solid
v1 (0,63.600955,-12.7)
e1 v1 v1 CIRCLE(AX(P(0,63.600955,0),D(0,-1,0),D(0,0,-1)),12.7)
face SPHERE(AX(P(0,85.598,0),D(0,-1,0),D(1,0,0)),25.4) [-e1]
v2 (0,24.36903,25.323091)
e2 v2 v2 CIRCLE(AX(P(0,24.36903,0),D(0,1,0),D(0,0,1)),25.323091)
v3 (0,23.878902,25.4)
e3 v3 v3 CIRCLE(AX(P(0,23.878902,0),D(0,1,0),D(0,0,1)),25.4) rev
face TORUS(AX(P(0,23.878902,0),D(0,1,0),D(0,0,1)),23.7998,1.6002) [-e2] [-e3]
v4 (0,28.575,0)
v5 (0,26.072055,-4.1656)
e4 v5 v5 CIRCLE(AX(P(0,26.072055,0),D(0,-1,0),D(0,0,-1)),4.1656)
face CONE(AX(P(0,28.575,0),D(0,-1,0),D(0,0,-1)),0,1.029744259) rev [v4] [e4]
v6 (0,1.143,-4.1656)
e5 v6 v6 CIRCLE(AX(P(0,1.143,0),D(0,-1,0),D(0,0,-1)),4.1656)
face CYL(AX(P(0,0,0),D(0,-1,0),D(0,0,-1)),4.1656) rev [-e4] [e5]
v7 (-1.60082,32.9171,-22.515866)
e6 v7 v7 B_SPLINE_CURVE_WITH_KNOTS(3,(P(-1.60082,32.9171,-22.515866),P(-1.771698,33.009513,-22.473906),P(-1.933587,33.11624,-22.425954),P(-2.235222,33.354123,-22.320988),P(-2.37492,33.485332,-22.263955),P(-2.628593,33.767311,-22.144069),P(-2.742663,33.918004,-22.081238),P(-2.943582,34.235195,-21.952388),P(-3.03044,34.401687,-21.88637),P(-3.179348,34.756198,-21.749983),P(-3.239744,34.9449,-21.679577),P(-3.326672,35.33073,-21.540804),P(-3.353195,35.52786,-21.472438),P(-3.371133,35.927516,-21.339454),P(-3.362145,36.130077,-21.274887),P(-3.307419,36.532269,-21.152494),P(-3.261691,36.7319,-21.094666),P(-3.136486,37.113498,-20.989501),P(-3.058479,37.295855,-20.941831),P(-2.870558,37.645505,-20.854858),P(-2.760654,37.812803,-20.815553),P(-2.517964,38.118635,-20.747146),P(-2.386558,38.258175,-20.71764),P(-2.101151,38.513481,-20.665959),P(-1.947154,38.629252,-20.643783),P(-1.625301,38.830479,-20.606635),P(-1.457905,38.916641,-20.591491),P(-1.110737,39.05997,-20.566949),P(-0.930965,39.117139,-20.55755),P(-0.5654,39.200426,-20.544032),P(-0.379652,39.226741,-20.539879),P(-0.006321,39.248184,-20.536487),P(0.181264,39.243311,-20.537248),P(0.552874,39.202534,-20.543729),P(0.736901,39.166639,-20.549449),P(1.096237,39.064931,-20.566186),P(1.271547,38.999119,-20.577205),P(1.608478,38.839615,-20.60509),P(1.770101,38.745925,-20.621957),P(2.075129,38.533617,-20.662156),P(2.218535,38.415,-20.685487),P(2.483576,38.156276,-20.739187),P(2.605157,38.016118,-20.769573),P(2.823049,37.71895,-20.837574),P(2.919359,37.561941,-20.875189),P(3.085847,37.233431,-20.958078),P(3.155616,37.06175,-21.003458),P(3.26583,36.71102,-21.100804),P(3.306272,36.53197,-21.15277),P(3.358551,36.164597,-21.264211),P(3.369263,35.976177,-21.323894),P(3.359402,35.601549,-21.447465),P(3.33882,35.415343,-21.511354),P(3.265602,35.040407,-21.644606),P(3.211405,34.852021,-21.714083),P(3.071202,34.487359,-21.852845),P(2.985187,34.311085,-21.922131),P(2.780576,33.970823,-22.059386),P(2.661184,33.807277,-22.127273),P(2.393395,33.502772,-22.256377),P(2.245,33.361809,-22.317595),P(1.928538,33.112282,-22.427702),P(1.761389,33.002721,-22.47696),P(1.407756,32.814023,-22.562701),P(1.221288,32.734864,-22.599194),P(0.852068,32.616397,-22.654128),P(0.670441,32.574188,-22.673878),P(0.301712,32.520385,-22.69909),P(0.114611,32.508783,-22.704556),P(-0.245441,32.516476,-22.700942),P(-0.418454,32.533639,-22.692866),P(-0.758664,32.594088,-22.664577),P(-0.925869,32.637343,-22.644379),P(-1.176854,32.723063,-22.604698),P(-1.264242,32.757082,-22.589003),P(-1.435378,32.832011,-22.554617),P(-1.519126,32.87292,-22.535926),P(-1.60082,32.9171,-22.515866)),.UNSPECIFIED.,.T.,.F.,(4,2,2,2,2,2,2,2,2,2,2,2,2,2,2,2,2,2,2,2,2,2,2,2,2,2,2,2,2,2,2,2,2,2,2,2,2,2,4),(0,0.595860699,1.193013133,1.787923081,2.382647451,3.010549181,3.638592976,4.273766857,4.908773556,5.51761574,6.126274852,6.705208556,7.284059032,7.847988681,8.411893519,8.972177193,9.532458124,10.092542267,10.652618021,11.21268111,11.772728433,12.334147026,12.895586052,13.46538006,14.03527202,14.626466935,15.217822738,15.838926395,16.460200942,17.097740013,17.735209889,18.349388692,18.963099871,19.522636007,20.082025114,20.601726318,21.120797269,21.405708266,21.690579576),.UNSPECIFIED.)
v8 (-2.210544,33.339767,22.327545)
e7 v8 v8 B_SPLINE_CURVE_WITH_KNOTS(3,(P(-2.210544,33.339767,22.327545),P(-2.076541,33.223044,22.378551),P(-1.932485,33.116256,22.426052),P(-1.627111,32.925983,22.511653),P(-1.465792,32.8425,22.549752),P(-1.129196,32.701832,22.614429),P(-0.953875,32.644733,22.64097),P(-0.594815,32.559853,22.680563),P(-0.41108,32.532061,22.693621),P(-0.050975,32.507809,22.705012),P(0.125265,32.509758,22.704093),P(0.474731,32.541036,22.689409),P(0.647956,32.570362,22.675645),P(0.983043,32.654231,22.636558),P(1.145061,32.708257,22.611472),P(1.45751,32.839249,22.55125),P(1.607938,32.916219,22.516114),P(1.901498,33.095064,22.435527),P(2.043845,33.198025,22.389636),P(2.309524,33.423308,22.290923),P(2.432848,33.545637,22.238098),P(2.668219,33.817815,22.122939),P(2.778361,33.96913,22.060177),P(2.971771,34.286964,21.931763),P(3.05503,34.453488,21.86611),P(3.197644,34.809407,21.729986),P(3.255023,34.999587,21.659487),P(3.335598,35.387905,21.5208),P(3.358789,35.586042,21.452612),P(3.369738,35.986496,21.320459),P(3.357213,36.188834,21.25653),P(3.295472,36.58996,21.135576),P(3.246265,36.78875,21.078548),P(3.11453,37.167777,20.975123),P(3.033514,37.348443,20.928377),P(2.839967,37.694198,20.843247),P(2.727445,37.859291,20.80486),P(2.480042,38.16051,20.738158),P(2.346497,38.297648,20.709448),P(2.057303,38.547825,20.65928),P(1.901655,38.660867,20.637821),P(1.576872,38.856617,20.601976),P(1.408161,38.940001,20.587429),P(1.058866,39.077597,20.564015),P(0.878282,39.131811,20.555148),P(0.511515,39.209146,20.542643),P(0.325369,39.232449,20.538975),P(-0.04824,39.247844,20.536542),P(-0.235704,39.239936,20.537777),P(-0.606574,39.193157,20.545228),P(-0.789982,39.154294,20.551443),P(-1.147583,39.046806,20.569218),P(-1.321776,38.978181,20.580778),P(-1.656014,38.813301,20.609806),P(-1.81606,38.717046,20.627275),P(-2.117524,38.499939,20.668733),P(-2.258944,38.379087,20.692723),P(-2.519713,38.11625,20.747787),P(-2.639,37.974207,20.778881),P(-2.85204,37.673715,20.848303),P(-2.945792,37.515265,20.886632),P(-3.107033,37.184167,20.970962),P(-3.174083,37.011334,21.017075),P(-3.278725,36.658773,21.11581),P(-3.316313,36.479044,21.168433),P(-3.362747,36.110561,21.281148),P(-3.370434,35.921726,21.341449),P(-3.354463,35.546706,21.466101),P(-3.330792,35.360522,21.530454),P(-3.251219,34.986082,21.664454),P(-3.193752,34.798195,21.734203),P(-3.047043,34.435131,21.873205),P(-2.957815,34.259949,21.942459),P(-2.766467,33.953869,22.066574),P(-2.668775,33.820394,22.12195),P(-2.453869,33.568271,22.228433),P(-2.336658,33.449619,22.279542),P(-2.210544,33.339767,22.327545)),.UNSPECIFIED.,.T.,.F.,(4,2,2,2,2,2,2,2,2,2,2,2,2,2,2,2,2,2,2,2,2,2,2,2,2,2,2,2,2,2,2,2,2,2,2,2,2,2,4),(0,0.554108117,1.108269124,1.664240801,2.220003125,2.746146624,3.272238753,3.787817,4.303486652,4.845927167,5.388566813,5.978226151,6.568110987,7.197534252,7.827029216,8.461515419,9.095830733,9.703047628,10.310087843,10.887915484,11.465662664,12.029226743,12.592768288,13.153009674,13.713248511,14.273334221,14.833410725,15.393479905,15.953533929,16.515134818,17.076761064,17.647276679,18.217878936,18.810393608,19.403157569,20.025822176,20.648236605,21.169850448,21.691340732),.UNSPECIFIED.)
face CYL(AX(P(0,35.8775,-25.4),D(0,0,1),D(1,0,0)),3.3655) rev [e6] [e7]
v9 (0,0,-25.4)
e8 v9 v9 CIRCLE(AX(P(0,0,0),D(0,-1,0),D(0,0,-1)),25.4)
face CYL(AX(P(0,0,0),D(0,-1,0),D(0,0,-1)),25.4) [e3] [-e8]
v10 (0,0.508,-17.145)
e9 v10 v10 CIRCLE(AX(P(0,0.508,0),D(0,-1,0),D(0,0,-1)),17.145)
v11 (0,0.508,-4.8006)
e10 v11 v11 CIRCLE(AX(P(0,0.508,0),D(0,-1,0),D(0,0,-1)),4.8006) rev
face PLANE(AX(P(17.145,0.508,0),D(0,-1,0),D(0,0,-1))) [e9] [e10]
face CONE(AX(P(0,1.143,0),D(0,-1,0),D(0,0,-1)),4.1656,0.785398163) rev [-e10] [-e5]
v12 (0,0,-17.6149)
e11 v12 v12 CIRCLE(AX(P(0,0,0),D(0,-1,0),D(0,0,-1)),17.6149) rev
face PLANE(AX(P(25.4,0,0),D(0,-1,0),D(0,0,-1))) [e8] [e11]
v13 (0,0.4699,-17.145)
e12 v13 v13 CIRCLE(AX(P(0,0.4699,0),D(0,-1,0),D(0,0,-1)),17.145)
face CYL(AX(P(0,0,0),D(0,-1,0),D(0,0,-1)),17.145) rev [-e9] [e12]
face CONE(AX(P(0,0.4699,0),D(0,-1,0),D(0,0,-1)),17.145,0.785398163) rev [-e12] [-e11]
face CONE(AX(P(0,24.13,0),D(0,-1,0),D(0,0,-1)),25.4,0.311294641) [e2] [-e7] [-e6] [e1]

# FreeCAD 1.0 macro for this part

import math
import FreeCAD as App
import Part
import Sketcher

V = App.Vector
Q = App.Units.Quantity


def edges_at(feature, points):
    """Names of the edges that pass closest to the given points."""
    edges = feature.Shape.Edges
    near = lambda p: min(range(len(edges)), key=lambda i: edges[i].distToShape(Part.Vertex(*p))[0])
    return sorted({f"Edge{near(p) + 1}" for p in points})

doc = App.newDocument("Part")
body = doc.addObject("PartDesign::Body", "Body")

# Sketch on XY plane
sketch1 = doc.addObject("Sketcher::SketchObject", "Sketch")
body.addObject(sketch1)
sketch1.AttachmentSupport = (doc.XY_Plane, [""])
sketch1.MapMode = "FlatFace"
sketch1.addGeometry([
    Part.LineSegment(V(25.4, 0, 0), V(25.4, 24.13, 0)),  # 0
    Part.LineSegment(V(25.4, 24.13, 0), V(12.7, 63.600955, 0)),  # 1
    Part.ArcOfCircle(Part.Circle(V(0, 85.598, 0), V(0, 0, 1), 25.4), math.radians(-60), math.radians(90)),  # 2
    Part.LineSegment(V(0, 110.998, 0), V(0, 28.575, 0)),  # 3
    Part.LineSegment(V(0, 28.575, 0), V(4.1656, 26.072055, 0)),  # 4
    Part.LineSegment(V(4.1656, 26.072055, 0), V(4.1656, 0.508, 0)),  # 5
    Part.LineSegment(V(4.1656, 0.508, 0), V(17.145, 0.508, 0)),  # 6
    Part.LineSegment(V(17.145, 0.508, 0), V(17.145, 0, 0)),  # 7
    Part.LineSegment(V(17.145, 0, 0), V(25.4, 0, 0)),  # 8
], False)
sketch1.addConstraint([
    Sketcher.Constraint("Coincident", 0, 2, 1, 1),
    Sketcher.Constraint("Coincident", 1, 2, 2, 1),
    Sketcher.Constraint("Coincident", 2, 2, 3, 1),
    Sketcher.Constraint("Coincident", 3, 2, 4, 1),
    Sketcher.Constraint("Coincident", 4, 2, 5, 1),
    Sketcher.Constraint("Coincident", 5, 2, 6, 1),
    Sketcher.Constraint("Coincident", 6, 2, 7, 1),
    Sketcher.Constraint("Coincident", 7, 2, 8, 1),
    Sketcher.Constraint("Coincident", 8, 2, 0, 1),
    Sketcher.Constraint("Vertical", 0),
    Sketcher.Constraint("Vertical", 3),
    Sketcher.Constraint("Vertical", 5),
    Sketcher.Constraint("Horizontal", 6),
    Sketcher.Constraint("Vertical", 7),
    Sketcher.Constraint("Horizontal", 8),
    Sketcher.Constraint("PointOnObject", 2, 3, -2),
    Sketcher.Constraint("PointOnObject", 2, 2, -2),
    Sketcher.Constraint("PointOnObject", 7, 2, -1),
    Sketcher.Constraint("Radius", 2, Q("1 in")),
    Sketcher.Constraint("DistanceX", -1, 1, 0, 2, Q("1 in")),
    Sketcher.Constraint("Angle", 4, Q("-31 deg")),
    Sketcher.Constraint("DistanceY", 0, 1, 0, 2, Q("0.95 in")),
    Sketcher.Constraint("DistanceY", 7, 2, 7, 1, Q("0.02 in")),
    Sketcher.Constraint("DistanceX", -1, 1, 1, 2, Q("0.5 in")),
    Sketcher.Constraint("DistanceX", 6, 1, 6, 2, Q("0.511 in")),
    Sketcher.Constraint("DistanceX", 8, 1, 8, 2, Q("0.325 in")),
    Sketcher.Constraint("DistanceY", 3, 2, 3, 1, Q("3.245 in")),
    Sketcher.Constraint("DistanceY", -1, 1, 2, 3, Q("3.37 in")),
])
revolution = doc.addObject("PartDesign::Revolution", "Revolution")
body.addObject(revolution)
revolution.Profile = sketch1
revolution.ReferenceAxis = (sketch1, ["V_Axis"])
revolution.Angle = 360

# Sketch on XY plane
sketch2 = doc.addObject("Sketcher::SketchObject", "Sketch001")
body.addObject(sketch2)
sketch2.AttachmentSupport = (doc.XY_Plane, [""])
sketch2.MapMode = "FlatFace"
sketch2.addGeometry(Part.Circle(V(0, 35.8775, 0), V(0, 0, 1), 3.3655), False)
sketch2.addConstraint([
    Sketcher.Constraint("PointOnObject", 0, 3, -2),
    Sketcher.Constraint("Diameter", 0, Q("0.265 in")),
    Sketcher.Constraint("DistanceY", -1, 1, 0, 3, Q("1.4125 in")),
])
pocket1 = doc.addObject("PartDesign::Pocket", "Pocket")
body.addObject(pocket1)
pocket1.Profile = sketch2
pocket1.Type = "ThroughAll"
pocket1.Midplane = True
doc.recompute()

fillet = doc.addObject("PartDesign::Fillet", "Fillet")
body.addObject(fillet)
fillet.Base = (pocket1, edges_at(pocket1, [(0, 24.13, 25.4)]))
fillet.Radius = Q("0.063 in")
doc.recompute()

chamfer = doc.addObject("PartDesign::Chamfer", "Chamfer")
body.addObject(chamfer)
chamfer.Base = (fillet, edges_at(fillet, [(0, 0, 17.145)]))
chamfer.Size = Q("0.0185 in")
doc.recompute()

chamfer2 = doc.addObject("PartDesign::Chamfer", "Chamfer001")
body.addObject(chamfer2)
chamfer2.Base = (chamfer, edges_at(chamfer, [(0, 0.508, 4.166)]))
chamfer2.Size = Q("0.025 in")

doc.recompute()
